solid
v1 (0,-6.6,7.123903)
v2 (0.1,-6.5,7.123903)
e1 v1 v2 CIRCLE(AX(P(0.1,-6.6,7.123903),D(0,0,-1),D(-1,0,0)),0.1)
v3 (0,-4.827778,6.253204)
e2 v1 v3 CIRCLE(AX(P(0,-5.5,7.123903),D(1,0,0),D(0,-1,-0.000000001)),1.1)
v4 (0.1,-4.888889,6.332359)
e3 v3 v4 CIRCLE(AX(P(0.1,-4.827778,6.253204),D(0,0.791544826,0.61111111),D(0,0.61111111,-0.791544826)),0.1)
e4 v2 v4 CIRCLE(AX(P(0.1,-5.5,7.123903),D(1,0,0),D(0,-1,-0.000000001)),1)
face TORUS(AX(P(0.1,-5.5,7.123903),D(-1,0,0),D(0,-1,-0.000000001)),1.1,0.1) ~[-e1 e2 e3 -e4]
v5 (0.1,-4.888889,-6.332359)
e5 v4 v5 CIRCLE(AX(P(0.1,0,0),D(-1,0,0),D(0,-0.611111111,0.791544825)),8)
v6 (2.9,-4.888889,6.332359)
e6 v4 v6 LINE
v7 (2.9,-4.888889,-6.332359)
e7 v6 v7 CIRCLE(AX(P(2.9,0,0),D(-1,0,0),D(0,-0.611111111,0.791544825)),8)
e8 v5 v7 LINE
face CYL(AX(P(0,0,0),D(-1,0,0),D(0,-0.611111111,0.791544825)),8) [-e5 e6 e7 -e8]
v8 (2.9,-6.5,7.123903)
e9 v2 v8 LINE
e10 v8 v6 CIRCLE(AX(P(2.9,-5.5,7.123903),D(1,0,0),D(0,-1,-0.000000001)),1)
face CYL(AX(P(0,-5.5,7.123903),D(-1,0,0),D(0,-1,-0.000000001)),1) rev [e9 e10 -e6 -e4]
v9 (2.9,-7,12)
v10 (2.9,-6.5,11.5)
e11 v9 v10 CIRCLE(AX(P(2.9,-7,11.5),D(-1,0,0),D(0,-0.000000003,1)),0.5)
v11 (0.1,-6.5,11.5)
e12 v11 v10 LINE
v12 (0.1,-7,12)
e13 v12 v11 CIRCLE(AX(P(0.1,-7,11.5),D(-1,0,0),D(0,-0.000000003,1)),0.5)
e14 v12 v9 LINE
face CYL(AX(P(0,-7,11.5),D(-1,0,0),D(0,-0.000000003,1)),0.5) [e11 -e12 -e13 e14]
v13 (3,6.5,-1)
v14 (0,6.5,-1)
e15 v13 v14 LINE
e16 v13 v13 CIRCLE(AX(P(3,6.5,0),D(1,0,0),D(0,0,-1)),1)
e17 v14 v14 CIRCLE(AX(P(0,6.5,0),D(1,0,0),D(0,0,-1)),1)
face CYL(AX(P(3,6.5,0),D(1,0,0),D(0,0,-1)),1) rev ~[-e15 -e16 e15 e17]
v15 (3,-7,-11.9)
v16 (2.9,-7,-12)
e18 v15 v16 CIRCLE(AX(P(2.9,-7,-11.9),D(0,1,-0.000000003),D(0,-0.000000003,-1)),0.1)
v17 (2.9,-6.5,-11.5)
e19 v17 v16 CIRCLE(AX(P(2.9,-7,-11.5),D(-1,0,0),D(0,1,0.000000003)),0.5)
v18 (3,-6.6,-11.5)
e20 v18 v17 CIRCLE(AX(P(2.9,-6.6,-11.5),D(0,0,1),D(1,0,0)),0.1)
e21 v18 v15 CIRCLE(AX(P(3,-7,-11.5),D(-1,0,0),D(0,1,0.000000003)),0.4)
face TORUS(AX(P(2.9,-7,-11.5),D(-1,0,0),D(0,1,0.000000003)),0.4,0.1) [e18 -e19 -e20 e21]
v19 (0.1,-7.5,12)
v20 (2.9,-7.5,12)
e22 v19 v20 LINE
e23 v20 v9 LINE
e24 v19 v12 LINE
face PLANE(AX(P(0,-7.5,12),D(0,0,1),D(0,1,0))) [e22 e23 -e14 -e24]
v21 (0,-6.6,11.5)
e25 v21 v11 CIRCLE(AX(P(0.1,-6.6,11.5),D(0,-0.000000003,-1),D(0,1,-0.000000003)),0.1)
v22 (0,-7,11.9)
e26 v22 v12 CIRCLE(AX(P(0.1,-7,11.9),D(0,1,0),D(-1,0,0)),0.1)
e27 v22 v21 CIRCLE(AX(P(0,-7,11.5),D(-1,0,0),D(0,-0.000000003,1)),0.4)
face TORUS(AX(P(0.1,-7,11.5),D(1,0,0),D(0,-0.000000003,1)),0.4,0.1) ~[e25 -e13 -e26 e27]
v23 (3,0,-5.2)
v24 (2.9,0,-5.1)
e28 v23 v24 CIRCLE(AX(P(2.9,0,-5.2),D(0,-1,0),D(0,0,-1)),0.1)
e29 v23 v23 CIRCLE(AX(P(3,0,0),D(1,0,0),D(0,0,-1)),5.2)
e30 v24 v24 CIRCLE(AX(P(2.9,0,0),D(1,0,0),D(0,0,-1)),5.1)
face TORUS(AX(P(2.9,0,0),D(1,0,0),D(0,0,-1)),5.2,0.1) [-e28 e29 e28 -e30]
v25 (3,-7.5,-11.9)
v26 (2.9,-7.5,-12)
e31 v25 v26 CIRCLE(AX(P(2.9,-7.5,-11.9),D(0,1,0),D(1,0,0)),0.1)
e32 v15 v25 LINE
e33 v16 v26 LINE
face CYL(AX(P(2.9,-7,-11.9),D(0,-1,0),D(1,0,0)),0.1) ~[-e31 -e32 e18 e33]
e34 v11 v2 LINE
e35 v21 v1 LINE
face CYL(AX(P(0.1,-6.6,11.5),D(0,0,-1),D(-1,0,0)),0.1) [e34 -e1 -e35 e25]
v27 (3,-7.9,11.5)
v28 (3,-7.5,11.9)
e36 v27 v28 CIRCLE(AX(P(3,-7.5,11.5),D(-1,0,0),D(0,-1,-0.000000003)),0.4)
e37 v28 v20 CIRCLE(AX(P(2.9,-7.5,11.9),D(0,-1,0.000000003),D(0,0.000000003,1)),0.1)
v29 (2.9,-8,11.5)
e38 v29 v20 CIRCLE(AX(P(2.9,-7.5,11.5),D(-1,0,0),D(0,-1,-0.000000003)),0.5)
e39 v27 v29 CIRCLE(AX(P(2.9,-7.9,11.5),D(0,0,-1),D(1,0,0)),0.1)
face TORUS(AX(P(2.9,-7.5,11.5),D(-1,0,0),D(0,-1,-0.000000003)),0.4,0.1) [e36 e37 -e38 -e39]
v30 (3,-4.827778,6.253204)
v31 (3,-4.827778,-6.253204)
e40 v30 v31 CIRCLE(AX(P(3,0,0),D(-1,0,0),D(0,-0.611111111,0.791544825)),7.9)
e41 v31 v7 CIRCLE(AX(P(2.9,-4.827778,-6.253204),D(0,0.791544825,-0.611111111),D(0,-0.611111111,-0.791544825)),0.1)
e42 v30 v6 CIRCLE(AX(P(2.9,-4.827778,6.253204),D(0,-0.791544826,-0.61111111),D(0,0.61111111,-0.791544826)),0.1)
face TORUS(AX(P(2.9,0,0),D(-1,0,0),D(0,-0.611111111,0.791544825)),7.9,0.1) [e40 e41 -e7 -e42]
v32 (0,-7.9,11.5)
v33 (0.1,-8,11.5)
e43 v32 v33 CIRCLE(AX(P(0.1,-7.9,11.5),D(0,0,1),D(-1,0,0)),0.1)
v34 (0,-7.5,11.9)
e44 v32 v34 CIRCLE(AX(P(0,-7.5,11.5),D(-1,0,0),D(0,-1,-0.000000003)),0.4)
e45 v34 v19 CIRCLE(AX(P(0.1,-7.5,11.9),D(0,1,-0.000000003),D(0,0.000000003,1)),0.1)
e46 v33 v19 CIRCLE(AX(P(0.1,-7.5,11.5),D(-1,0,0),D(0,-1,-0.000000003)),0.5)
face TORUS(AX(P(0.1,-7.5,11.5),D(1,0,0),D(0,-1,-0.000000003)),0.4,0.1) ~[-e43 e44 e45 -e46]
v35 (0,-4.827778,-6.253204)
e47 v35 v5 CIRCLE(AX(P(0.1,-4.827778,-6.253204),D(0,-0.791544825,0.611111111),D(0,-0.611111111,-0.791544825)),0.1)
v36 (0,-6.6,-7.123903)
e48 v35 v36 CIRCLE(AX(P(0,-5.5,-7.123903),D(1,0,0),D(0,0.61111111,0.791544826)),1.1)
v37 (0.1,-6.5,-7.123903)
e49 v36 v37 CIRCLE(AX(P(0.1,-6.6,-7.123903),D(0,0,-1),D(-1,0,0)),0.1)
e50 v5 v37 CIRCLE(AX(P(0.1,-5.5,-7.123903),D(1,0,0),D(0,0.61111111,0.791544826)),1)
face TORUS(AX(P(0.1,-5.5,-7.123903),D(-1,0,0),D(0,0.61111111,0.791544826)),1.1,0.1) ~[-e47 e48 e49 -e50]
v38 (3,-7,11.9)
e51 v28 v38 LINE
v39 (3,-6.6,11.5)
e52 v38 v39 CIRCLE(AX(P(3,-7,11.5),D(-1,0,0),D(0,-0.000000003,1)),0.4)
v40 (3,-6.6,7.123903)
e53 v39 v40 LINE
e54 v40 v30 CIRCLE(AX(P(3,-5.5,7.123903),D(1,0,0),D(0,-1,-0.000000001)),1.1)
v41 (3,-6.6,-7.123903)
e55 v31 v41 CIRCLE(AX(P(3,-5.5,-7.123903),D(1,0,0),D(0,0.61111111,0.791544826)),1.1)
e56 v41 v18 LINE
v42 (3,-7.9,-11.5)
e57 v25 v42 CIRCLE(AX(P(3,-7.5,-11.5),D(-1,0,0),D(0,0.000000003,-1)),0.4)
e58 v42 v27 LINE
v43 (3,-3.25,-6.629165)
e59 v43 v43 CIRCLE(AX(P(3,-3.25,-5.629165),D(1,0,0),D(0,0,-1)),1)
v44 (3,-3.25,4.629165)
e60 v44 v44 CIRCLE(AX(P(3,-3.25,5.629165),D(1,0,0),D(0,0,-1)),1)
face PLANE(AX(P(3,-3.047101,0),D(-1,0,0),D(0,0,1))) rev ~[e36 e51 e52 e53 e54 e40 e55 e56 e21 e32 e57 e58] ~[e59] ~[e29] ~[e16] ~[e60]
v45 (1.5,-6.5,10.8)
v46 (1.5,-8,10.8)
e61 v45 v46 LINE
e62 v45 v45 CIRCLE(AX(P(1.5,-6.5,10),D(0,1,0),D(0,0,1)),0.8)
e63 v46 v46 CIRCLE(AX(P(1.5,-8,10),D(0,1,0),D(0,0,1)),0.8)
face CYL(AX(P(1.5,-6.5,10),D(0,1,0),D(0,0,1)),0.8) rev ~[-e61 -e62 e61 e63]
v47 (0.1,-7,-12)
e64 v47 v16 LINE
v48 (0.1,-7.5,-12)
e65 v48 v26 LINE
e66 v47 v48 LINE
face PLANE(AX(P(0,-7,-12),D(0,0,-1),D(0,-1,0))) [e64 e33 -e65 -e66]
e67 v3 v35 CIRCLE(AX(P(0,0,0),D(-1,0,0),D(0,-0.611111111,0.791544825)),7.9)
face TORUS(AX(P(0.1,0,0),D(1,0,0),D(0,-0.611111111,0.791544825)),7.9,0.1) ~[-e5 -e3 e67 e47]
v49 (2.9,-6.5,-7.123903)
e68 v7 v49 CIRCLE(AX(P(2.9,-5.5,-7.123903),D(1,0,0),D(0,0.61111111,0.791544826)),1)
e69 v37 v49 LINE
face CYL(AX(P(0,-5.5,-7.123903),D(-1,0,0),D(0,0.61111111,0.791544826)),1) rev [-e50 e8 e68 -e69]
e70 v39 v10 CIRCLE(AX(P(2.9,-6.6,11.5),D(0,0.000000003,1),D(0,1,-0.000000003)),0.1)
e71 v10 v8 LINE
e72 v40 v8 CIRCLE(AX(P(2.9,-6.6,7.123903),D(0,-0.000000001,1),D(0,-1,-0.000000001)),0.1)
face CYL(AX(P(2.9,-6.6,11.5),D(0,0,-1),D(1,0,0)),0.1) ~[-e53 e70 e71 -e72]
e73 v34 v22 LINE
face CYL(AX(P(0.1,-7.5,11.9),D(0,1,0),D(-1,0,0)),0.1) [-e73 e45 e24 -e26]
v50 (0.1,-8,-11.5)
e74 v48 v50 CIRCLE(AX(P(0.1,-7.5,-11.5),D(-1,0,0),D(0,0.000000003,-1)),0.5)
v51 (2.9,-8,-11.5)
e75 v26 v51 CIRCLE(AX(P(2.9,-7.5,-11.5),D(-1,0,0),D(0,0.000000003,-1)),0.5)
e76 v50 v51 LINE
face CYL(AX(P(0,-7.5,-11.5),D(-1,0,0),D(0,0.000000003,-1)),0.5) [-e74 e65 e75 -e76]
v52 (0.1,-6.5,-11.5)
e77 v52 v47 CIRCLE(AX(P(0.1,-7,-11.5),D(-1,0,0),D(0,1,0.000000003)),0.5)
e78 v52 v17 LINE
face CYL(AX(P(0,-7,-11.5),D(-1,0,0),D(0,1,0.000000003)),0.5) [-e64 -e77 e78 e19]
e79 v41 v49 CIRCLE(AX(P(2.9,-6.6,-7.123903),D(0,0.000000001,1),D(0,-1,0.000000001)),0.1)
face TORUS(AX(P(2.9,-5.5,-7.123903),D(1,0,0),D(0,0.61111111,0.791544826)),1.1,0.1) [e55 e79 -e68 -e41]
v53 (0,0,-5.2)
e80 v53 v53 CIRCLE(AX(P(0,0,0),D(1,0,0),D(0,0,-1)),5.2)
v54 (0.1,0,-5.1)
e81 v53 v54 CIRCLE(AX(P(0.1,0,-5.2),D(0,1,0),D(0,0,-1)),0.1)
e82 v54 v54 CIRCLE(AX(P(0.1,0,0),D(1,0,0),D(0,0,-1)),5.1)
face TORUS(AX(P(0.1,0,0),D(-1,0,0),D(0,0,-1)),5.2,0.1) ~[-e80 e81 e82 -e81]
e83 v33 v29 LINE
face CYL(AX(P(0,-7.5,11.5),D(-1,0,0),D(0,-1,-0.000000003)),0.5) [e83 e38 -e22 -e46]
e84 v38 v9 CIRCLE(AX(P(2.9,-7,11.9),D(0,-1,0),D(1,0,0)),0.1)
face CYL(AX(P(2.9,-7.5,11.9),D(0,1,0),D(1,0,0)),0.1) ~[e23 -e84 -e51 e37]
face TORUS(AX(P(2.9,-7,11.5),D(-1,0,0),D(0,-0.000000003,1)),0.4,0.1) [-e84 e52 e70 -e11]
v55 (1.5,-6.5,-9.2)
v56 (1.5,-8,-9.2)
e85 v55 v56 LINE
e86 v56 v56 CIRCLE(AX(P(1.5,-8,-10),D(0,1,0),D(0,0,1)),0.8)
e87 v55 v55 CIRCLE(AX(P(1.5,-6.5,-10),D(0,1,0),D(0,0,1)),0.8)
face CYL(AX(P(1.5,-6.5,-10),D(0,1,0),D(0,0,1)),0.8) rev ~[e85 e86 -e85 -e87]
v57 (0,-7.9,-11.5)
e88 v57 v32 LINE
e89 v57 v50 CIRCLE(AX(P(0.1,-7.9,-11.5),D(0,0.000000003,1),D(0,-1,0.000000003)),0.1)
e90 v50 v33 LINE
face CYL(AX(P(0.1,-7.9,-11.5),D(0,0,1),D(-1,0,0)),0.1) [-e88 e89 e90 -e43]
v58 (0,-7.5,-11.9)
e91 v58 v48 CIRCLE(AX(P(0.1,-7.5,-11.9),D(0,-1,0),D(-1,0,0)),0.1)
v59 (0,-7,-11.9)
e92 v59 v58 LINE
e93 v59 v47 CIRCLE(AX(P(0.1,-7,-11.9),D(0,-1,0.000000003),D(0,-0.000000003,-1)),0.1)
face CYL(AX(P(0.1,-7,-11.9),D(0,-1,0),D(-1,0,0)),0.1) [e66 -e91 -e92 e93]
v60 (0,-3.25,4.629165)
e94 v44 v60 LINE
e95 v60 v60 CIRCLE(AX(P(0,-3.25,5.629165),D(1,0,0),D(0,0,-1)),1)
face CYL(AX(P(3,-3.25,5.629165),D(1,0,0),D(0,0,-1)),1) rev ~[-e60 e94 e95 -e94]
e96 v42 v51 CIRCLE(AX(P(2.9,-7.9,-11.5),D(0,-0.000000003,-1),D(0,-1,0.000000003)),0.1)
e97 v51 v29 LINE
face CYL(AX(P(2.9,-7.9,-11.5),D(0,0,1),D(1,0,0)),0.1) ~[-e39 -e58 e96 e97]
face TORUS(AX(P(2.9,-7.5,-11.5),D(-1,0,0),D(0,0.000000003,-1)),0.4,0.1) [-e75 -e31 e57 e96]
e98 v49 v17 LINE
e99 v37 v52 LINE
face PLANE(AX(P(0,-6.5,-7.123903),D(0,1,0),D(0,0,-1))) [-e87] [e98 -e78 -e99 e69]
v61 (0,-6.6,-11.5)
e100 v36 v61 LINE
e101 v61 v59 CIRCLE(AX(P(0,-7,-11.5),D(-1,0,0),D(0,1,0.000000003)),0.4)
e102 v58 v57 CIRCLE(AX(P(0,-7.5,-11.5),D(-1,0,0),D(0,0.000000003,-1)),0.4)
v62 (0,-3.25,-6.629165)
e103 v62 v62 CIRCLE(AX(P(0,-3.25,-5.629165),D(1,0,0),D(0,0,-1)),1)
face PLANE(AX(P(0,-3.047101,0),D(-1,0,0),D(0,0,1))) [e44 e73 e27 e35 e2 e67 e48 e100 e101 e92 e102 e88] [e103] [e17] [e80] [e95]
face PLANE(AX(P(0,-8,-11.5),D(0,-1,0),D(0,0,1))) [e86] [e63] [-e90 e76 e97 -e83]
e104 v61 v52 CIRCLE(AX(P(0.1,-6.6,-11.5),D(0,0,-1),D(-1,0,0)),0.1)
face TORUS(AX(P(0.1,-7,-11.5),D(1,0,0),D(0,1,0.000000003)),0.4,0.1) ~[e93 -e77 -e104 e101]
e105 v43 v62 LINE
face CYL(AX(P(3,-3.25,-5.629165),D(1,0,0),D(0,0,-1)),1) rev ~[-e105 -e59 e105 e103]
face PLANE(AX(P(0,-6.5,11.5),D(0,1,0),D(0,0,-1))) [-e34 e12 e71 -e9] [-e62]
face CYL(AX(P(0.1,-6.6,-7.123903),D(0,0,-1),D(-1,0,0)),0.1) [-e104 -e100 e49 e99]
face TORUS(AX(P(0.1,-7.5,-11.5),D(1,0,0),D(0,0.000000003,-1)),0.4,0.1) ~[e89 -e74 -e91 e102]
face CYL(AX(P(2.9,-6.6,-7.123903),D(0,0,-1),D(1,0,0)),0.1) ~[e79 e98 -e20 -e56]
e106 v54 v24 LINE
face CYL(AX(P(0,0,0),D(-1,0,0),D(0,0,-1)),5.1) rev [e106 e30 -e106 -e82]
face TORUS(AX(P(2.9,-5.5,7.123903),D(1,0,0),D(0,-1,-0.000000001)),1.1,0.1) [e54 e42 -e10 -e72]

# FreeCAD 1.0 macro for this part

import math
import FreeCAD as App
import Part
import Sketcher
Q = App.Units.Quantity


def edges_at(feature, points):
    """Names of the edges that pass closest to the given points."""
    edges = feature.Shape.Edges
    near = lambda p: min(range(len(edges)), key=lambda i: edges[i].distToShape(Part.Vertex(*p))[0])
    return sorted({f"Edge{near(p) + 1}" for p in points})

doc = App.newDocument("Part")
body = doc.addObject("PartDesign::Body", "Body")

# Sketch on YZ plane
sketch1 = doc.addObject("Sketcher::SketchObject", "Sketch")
body.addObject(sketch1)
sketch1.AttachmentSupport = (doc.YZ_Plane, [""])
sketch1.MapMode = "FlatFace"
sketch1.addGeometry([
    Part.LineSegment(App.Vector(-6.5, 7.12, 0), App.Vector(-6.5, 11.5, 0)),  # 0
    Part.ArcOfCircle(Part.Circle(App.Vector(-7, 11.5, 0), App.Vector(0, 0, 1), 0.5), math.radians(0), math.radians(90)),  # 1
    Part.LineSegment(App.Vector(-7, 12, 0), App.Vector(-7.5, 12, 0)),  # 2
    Part.ArcOfCircle(Part.Circle(App.Vector(-7.5, 11.5, 0), App.Vector(0, 0, 1), 0.5), math.radians(90), math.radians(180)),  # 3
    Part.LineSegment(App.Vector(-8, 11.5, 0), App.Vector(-8, -11.5, 0)),  # 4
    Part.ArcOfCircle(Part.Circle(App.Vector(-7.5, -11.5, 0), App.Vector(0, 0, 1), 0.5), math.radians(180), math.radians(270)),  # 5
    Part.LineSegment(App.Vector(-7.5, -12, 0), App.Vector(-7, -12, 0)),  # 6
    Part.ArcOfCircle(Part.Circle(App.Vector(-7, -11.5, 0), App.Vector(0, 0, 1), 0.5), math.radians(-90), math.radians(0)),  # 7
    Part.LineSegment(App.Vector(-6.5, -11.5, 0), App.Vector(-6.5, -7.12, 0)),  # 8
    Part.ArcOfCircle(Part.Circle(App.Vector(-5.5, -7.12, 0), App.Vector(0, 0, 1), 1), math.radians(52), math.radians(180)),  # 9
    Part.ArcOfCircle(Part.Circle(App.Vector(0, 0, 0), App.Vector(0, 0, 1), 8), math.radians(-128), math.radians(128)),  # 10
    Part.ArcOfCircle(Part.Circle(App.Vector(-5.5, 7.12, 0), App.Vector(0, 0, 1), 1), math.radians(-180), math.radians(-52)),  # 11
    Part.Circle(App.Vector(0, 0, 0), App.Vector(0, 0, 1), 5.1),  # 12
], False)
sketch1.addConstraint([
    Sketcher.Constraint("Tangent", 0, 2, 1, 1),
    Sketcher.Constraint("Tangent", 1, 2, 2, 1),
    Sketcher.Constraint("Tangent", 2, 2, 3, 1),
    Sketcher.Constraint("Tangent", 3, 2, 4, 1),
    Sketcher.Constraint("Tangent", 4, 2, 5, 1),
    Sketcher.Constraint("Tangent", 5, 2, 6, 1),
    Sketcher.Constraint("Tangent", 6, 2, 7, 1),
    Sketcher.Constraint("Tangent", 7, 2, 8, 1),
    Sketcher.Constraint("Tangent", 8, 2, 9, 2),
    Sketcher.Constraint("Tangent", 9, 1, 10, 1),
    Sketcher.Constraint("Tangent", 10, 2, 11, 2),
    Sketcher.Constraint("Tangent", 11, 1, 0, 1),
    Sketcher.Constraint("Vertical", 0),
    Sketcher.Constraint("Horizontal", 2),
    Sketcher.Constraint("Vertical", 4),
    Sketcher.Constraint("Horizontal", 6),
    Sketcher.Constraint("Vertical", 8),
    Sketcher.Constraint("Coincident", 10, 3, -1, 1),
    Sketcher.Constraint("Coincident", 12, 3, -1, 1),
    Sketcher.Constraint("Equal", 1, 3),
    Sketcher.Constraint("Equal", 3, 5),
    Sketcher.Constraint("Equal", 5, 7),
    Sketcher.Constraint("Equal", 9, 11),
    Sketcher.Constraint("Symmetric", 1, 3, 7, 3, -1),
    Sketcher.Constraint("Radius", 9, Q("1 mm")),
    Sketcher.Constraint("Radius", 10, Q("8 mm")),
    Sketcher.Constraint("Diameter", 12, Q("10.2 mm")),
    Sketcher.Constraint("Radius", 1, Q("0.5 mm")),
    Sketcher.Constraint("DistanceY", 4, 2, 4, 1, Q("23 mm")),
    Sketcher.Constraint("DistanceX", 2, 2, 2, 1, Q("0.5 mm")),
    Sketcher.Constraint("DistanceX", 1, 3, -1, 1, Q("7 mm")),
])
pad1 = doc.addObject("PartDesign::Pad", "Pad")
body.addObject(pad1)
pad1.Profile = sketch1
pad1.Length = 3

# Sketch on XZ plane
sketch2 = doc.addObject("Sketcher::SketchObject", "Sketch001")
body.addObject(sketch2)
sketch2.AttachmentSupport = (doc.XZ_Plane, [""])
sketch2.MapMode = "FlatFace"
sketch2.AttachmentOffset = App.Placement(App.Vector(0, 0, 6.5), App.Rotation())
sketch2.addGeometry(Part.Circle(App.Vector(1.5, 10, 0), App.Vector(0, 0, 1), 0.8), False)
sketch2.addConstraint([
    Sketcher.Constraint("Diameter", 0, Q("1.6 mm")),
    Sketcher.Constraint("DistanceY", -1, 1, 0, 3, Q("10 mm")),
    Sketcher.Constraint("DistanceX", -1, 1, 0, 3, Q("1.5 mm")),
])
pocket1 = doc.addObject("PartDesign::Pocket", "Pocket")
body.addObject(pocket1)
pocket1.Profile = sketch2
pocket1.Type = "UpToFirst"
pocket1.Reversed = True

# Sketch on XZ plane
sketch3 = doc.addObject("Sketcher::SketchObject", "Sketch002")
body.addObject(sketch3)
sketch3.AttachmentSupport = (doc.XZ_Plane, [""])
sketch3.MapMode = "FlatFace"
sketch3.AttachmentOffset = App.Placement(App.Vector(0, 0, 6.5), App.Rotation())
sketch3.addGeometry(Part.Circle(App.Vector(1.5, -10, 0), App.Vector(0, 0, 1), 0.8), False)
sketch3.addConstraint([
    Sketcher.Constraint("Diameter", 0, Q("1.6 mm")),
    Sketcher.Constraint("DistanceY", 0, 3, -1, 1, Q("10 mm")),
    Sketcher.Constraint("DistanceX", -1, 1, 0, 3, Q("1.5 mm")),
])
pocket2 = doc.addObject("PartDesign::Pocket", "Pocket001")
body.addObject(pocket2)
pocket2.Profile = sketch3
pocket2.Type = "UpToFirst"
pocket2.Reversed = True
doc.recompute()

fillet = doc.addObject("PartDesign::Fillet", "Fillet")
body.addObject(fillet)
fillet.Base = (pocket2, edges_at(pocket2, [
    (3, -5.941, 6.226),
    (0, -6.5, -9.312),
    (0, -6.646, -11.854),
    (0, -7.25, -12),
    (0, -7.854, -11.854),
    (0, -8, 0),
    (0, -7.854, 11.854),
    (3, -6.5, 9.312),
    (0, -7.25, 12),
    (0, -6.646, 11.854),
    (0, -6.5, 9.312),
    (0, -5.941, 6.226),
    (0, 8, 0),
    (0, -5.941, -6.226),
    (3, -6.646, 11.854),
    (3, -7.25, 12),
    (3, -7.854, 11.854),
    (3, -8, 0),
    (3, -7.854, -11.854),
    (0, 0, 5.1),
    (3, 0, 5.1),
    (3, -7.25, -12),
    (3, -6.646, -11.854),
    (3, -6.5, -9.312),
    (3, -5.941, -6.226),
    (3, 8, 0),
]))
fillet.Radius = 0.1

# Sketch on YZ plane
sketch4 = doc.addObject("Sketcher::SketchObject", "Sketch003")
body.addObject(sketch4)
sketch4.AttachmentSupport = (doc.YZ_Plane, [""])
sketch4.MapMode = "FlatFace"
sketch4.AttachmentOffset = App.Placement(App.Vector(0, 0, 3), App.Rotation())
sketch4.addGeometry(Part.Circle(App.Vector(6.5, 0, 0), App.Vector(0, 0, 1), 1), False)
sketch4.addConstraint([
    Sketcher.Constraint("PointOnObject", 0, 3, -1),
    Sketcher.Constraint("Diameter", 0, Q("2 mm")),
    Sketcher.Constraint("DistanceX", -1, 1, 0, 3, Q("6.5 mm")),
])
pocket3 = doc.addObject("PartDesign::Pocket", "Pocket002")
body.addObject(pocket3)
pocket3.Profile = sketch4
pocket3.Type = "UpToFirst"

# Sketch on YZ plane
sketch5 = doc.addObject("Sketcher::SketchObject", "Sketch004")
body.addObject(sketch5)
sketch5.AttachmentSupport = (doc.YZ_Plane, [""])
sketch5.MapMode = "FlatFace"
sketch5.AttachmentOffset = App.Placement(App.Vector(0, 0, 3), App.Rotation())
sketch5.addGeometry(Part.Circle(App.Vector(-3.2, -5.6, 0), App.Vector(0, 0, 1), 1), False)
sketch5.addConstraint([
    Sketcher.Constraint("Diameter", 0, Q("2 mm")),
    Sketcher.Constraint("DistanceX", 0, 3, -1, 1, Q("3.25 mm")),
    Sketcher.Constraint("DistanceY", 0, 3, -1, 1, Q("5.629165 mm")),
])
pocket4 = doc.addObject("PartDesign::Pocket", "Pocket003")
body.addObject(pocket4)
pocket4.Profile = sketch5
pocket4.Type = "UpToFirst"

# Sketch on YZ plane
sketch6 = doc.addObject("Sketcher::SketchObject", "Sketch005")
body.addObject(sketch6)
sketch6.AttachmentSupport = (doc.YZ_Plane, [""])
sketch6.MapMode = "FlatFace"
sketch6.AttachmentOffset = App.Placement(App.Vector(0, 0, 3), App.Rotation())
sketch6.addGeometry(Part.Circle(App.Vector(-3.2, 5.6, 0), App.Vector(0, 0, 1), 1), False)
sketch6.addConstraint([
    Sketcher.Constraint("Diameter", 0, Q("2 mm")),
    Sketcher.Constraint("DistanceX", 0, 3, -1, 1, Q("3.25 mm")),
    Sketcher.Constraint("DistanceY", -1, 1, 0, 3, Q("5.629165 mm")),
])
pocket5 = doc.addObject("PartDesign::Pocket", "Pocket004")
body.addObject(pocket5)
pocket5.Profile = sketch6
pocket5.Type = "UpToFirst"

doc.recompute()
